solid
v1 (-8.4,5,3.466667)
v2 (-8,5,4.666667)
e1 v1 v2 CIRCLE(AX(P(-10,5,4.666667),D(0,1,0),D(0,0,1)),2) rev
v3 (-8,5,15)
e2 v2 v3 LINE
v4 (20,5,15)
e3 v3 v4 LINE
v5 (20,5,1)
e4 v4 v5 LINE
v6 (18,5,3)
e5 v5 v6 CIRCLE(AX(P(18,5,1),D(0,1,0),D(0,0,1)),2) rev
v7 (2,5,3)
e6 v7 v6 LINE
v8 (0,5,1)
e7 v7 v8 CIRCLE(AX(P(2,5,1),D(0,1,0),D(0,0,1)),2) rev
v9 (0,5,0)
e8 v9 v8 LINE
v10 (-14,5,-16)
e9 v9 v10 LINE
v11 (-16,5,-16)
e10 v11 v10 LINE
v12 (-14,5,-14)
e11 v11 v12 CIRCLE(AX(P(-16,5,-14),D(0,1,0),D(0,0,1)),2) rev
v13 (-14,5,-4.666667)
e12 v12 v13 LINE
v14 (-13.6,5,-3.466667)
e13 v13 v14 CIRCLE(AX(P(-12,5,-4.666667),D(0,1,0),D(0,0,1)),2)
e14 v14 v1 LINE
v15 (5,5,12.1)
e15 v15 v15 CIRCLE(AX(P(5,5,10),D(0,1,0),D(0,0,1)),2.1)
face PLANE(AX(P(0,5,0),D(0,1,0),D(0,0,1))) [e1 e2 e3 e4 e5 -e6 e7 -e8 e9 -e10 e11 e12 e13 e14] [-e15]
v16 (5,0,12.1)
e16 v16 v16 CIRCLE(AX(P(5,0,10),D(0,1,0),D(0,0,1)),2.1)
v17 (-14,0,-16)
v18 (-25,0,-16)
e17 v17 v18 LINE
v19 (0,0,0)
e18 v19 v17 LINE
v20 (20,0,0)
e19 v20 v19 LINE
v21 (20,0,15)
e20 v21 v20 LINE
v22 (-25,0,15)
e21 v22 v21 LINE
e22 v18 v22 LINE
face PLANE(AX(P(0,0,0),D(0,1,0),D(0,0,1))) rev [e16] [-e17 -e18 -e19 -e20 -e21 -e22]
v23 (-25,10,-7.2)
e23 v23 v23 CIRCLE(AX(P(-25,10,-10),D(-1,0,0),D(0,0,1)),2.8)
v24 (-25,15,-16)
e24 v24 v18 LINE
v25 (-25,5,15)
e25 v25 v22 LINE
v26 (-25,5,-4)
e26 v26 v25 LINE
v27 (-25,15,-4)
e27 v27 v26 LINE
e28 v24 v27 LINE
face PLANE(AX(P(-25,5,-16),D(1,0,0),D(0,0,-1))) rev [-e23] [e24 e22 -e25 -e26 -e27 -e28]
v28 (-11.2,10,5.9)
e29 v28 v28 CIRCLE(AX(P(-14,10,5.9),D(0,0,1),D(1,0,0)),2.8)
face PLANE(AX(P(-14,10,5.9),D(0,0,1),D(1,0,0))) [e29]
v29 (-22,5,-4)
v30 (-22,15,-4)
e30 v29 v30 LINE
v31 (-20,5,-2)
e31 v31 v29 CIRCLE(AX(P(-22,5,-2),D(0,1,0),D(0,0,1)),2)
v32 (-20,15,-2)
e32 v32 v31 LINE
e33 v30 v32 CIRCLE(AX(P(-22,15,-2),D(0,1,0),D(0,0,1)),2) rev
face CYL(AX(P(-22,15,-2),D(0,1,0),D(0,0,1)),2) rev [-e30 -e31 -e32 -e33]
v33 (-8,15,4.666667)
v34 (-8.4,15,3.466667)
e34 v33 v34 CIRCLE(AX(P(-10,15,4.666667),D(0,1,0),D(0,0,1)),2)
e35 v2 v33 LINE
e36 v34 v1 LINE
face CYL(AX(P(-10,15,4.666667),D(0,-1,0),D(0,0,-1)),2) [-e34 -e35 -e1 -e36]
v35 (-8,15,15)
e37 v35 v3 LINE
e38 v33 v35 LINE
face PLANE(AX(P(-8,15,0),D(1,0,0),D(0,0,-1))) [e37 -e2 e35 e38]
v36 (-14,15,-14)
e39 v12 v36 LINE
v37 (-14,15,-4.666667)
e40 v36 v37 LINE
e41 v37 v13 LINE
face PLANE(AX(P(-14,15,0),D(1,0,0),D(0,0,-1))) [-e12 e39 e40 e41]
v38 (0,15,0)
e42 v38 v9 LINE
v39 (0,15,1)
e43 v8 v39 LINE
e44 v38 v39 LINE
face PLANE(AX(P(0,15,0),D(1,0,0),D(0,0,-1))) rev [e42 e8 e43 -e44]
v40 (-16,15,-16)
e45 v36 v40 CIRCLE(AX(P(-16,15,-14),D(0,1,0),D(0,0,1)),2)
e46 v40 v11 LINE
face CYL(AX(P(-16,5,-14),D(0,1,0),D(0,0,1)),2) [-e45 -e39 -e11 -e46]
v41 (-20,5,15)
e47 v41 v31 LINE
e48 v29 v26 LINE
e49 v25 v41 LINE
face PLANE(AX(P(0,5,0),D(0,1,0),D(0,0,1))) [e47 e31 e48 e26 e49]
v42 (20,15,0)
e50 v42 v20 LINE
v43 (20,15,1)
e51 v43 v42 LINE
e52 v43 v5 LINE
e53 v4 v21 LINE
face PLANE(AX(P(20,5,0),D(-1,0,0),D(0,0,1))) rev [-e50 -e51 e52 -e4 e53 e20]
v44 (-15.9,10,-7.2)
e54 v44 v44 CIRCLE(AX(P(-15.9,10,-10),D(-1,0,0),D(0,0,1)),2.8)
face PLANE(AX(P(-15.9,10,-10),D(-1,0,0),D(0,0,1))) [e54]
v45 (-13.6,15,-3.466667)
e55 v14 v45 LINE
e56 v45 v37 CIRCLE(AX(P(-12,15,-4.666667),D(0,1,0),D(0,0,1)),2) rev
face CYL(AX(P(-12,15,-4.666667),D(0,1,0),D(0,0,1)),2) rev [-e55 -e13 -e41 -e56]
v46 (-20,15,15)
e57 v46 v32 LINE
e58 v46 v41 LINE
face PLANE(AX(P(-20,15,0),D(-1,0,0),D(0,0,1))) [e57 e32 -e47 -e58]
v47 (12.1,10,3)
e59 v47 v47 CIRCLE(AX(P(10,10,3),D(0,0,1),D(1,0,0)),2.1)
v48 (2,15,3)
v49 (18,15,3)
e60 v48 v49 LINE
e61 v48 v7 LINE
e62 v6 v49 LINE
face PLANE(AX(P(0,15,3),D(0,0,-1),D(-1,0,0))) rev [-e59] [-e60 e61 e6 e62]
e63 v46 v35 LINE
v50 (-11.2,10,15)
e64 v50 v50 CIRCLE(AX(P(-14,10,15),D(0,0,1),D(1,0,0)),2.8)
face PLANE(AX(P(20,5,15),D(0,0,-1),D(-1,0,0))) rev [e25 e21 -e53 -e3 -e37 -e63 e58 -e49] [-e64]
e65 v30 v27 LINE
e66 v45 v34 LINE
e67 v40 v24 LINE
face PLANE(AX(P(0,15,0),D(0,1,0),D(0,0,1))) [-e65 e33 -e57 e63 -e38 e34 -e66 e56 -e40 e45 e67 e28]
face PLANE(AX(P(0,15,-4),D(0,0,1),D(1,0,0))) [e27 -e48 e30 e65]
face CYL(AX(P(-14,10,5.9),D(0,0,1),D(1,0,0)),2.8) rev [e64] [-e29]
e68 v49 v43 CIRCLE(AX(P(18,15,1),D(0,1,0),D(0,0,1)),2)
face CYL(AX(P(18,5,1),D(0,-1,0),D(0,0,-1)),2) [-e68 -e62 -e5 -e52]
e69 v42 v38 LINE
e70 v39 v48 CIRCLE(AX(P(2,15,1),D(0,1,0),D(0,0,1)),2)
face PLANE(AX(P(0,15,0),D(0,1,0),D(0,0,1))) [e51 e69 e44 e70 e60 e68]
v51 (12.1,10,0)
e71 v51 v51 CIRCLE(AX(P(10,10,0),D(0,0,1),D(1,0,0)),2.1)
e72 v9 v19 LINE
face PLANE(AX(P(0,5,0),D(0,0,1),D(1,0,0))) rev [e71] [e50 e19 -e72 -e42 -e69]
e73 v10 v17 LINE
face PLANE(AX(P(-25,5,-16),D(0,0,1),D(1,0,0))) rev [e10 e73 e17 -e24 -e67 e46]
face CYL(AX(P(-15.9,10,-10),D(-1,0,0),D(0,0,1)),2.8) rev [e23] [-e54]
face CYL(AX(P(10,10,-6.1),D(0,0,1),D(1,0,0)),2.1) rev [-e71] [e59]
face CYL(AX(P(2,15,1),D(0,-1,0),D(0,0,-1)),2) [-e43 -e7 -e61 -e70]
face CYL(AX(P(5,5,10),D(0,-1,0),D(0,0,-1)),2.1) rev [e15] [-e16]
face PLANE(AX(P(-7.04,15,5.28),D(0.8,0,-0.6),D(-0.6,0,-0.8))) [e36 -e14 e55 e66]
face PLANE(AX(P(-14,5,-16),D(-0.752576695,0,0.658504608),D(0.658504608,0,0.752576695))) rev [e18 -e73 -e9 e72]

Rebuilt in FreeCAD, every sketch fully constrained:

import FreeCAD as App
import Part
import Sketcher
from FreeCAD import Vector
Q = App.Units.Quantity


def edges_at(feature, points):
    """Names of the edges that pass closest to the given points."""
    edges = feature.Shape.Edges
    near = lambda p: min(range(len(edges)), key=lambda i: edges[i].distToShape(Part.Vertex(*p))[0])
    return sorted({f"Edge{near(p) + 1}" for p in points})

doc = App.newDocument("Part")
body = doc.addObject("PartDesign::Body", "Body")

# Sketch on XZ plane
sketch1 = doc.addObject("Sketcher::SketchObject", "Sketch")
body.addObject(sketch1)
sketch1.AttachmentSupport = (doc.XZ_Plane, [""])
sketch1.MapMode = "FlatFace"
sketch1.addGeometry([
    Part.LineSegment(Vector(20, 15, 0), Vector(20, 0, 0)),  # 0
    Part.LineSegment(Vector(20, 0, 0), Vector(0, 0, 0)),  # 1
    Part.LineSegment(Vector(0, 0, 0), Vector(-14, -16, 0)),  # 2
    Part.LineSegment(Vector(-14, -16, 0), Vector(-25, -16, 0)),  # 3
    Part.LineSegment(Vector(-25, -16, 0), Vector(-25, 15, 0)),  # 4
    Part.LineSegment(Vector(-25, 15, 0), Vector(20, 15, 0)),  # 5
    Part.Circle(Vector(5, 10, 0), Vector(0, 0, 1), 2.1),  # 6
], False)
sketch1.addConstraint([
    Sketcher.Constraint("Coincident", 0, 2, 1, 1),
    Sketcher.Constraint("Coincident", 1, 2, 2, 1),
    Sketcher.Constraint("Coincident", 2, 2, 3, 1),
    Sketcher.Constraint("Coincident", 3, 2, 4, 1),
    Sketcher.Constraint("Coincident", 4, 2, 5, 1),
    Sketcher.Constraint("Coincident", 5, 2, 0, 1),
    Sketcher.Constraint("Vertical", 0),
    Sketcher.Constraint("Horizontal", 1),
    Sketcher.Constraint("Horizontal", 3),
    Sketcher.Constraint("Vertical", 4),
    Sketcher.Constraint("Horizontal", 5),
    Sketcher.Constraint("Coincident", 1, 2, -1, 1),
    Sketcher.Constraint("Diameter", 6, Q("4.2 mm")),
    Sketcher.Constraint("DistanceX", 1, 2, 1, 1, Q("20 mm")),
    Sketcher.Constraint("DistanceX", 3, 2, 3, 1, Q("11 mm")),
    Sketcher.Constraint("DistanceX", 5, 1, 5, 2, Q("45 mm")),
    Sketcher.Constraint("DistanceY", 0, 2, 0, 1, Q("15 mm")),
    Sketcher.Constraint("DistanceY", 4, 1, 4, 2, Q("31 mm")),
    Sketcher.Constraint("DistanceX", -1, 1, 6, 3, Q("5 mm")),
    Sketcher.Constraint("DistanceY", -1, 1, 6, 3, Q("10 mm")),
])
pad1 = doc.addObject("PartDesign::Pad", "Pad")
body.addObject(pad1)
pad1.Profile = sketch1
pad1.Length = 5
pad1.Reversed = True

# Sketch on XZ plane
sketch2 = doc.addObject("Sketcher::SketchObject", "Sketch001")
body.addObject(sketch2)
sketch2.AttachmentSupport = (doc.XZ_Plane, [""])
sketch2.MapMode = "FlatFace"
sketch2.AttachmentOffset = App.Placement(Vector(0, 0, -5), App.Rotation())
sketch2.addGeometry([
    Part.LineSegment(Vector(0, 0, 0), Vector(0, 3, 0)),  # 0
    Part.LineSegment(Vector(0, 3, 0), Vector(20, 3, 0)),  # 1
    Part.LineSegment(Vector(20, 3, 0), Vector(20, 0, 0)),  # 2
    Part.LineSegment(Vector(20, 0, 0), Vector(0, 0, 0)),  # 3
    Part.LineSegment(Vector(-14, -4, 0), Vector(-14, -16, 0)),  # 4
    Part.LineSegment(Vector(-14, -16, 0), Vector(-25, -16, 0)),  # 5
    Part.LineSegment(Vector(-25, -16, 0), Vector(-25, -4, 0)),  # 6
    Part.LineSegment(Vector(-25, -4, 0), Vector(-20, -4, 0)),  # 7
    Part.LineSegment(Vector(-20, -4, 0), Vector(-20, 15, 0)),  # 8
    Part.LineSegment(Vector(-20, 15, 0), Vector(-8, 15, 0)),  # 9
    Part.LineSegment(Vector(-8, 15, 0), Vector(-8, 4, 0)),  # 10
    Part.LineSegment(Vector(-8, 4, 0), Vector(-14, -4, 0)),  # 11
], False)
sketch2.addConstraint([
    Sketcher.Constraint("Coincident", 0, 2, 1, 1),
    Sketcher.Constraint("Coincident", 1, 2, 2, 1),
    Sketcher.Constraint("Coincident", 2, 2, 3, 1),
    Sketcher.Constraint("Coincident", 3, 2, 0, 1),
    Sketcher.Constraint("Coincident", 4, 2, 5, 1),
    Sketcher.Constraint("Coincident", 5, 2, 6, 1),
    Sketcher.Constraint("Coincident", 6, 2, 7, 1),
    Sketcher.Constraint("Coincident", 7, 2, 8, 1),
    Sketcher.Constraint("Coincident", 8, 2, 9, 1),
    Sketcher.Constraint("Coincident", 9, 2, 10, 1),
    Sketcher.Constraint("Coincident", 10, 2, 11, 1),
    Sketcher.Constraint("Coincident", 11, 2, 4, 1),
    Sketcher.Constraint("Vertical", 0),
    Sketcher.Constraint("Horizontal", 1),
    Sketcher.Constraint("Vertical", 2),
    Sketcher.Constraint("Horizontal", 3),
    Sketcher.Constraint("Vertical", 4),
    Sketcher.Constraint("Horizontal", 5),
    Sketcher.Constraint("Vertical", 6),
    Sketcher.Constraint("Horizontal", 7),
    Sketcher.Constraint("Vertical", 8),
    Sketcher.Constraint("Horizontal", 9),
    Sketcher.Constraint("Vertical", 10),
    Sketcher.Constraint("Coincident", 3, 2, -1, 1),
    Sketcher.Constraint("Horizontal", 7, 2, 11, 2),
    Sketcher.Constraint("Equal", 9, 4),
    Sketcher.Constraint("Equal", 5, 10),
    Sketcher.Constraint("DistanceX", 1, 1, 1, 2, Q("20 mm")),
    Sketcher.Constraint("DistanceX", 5, 2, 5, 1, Q("11 mm")),
    Sketcher.Constraint("DistanceX", 7, 1, 7, 2, Q("5 mm")),
    Sketcher.Constraint("DistanceX", 9, 1, 9, 2, Q("12 mm")),
    Sketcher.Constraint("DistanceY", 0, 1, 0, 2, Q("3 mm")),
    Sketcher.Constraint("DistanceY", 8, 1, 8, 2, Q("19 mm")),
    Sketcher.Constraint("DistanceX", 4, 2, -1, 1, Q("14 mm")),
    Sketcher.Constraint("DistanceY", 4, 2, -1, 1, Q("16 mm")),
])
pad2 = doc.addObject("PartDesign::Pad", "Pad001")
body.addObject(pad2)
pad2.Profile = sketch2
pad2.Length = 10
pad2.Reversed = True

# Sketch on XY plane
sketch3 = doc.addObject("Sketcher::SketchObject", "Sketch002")
body.addObject(sketch3)
sketch3.AttachmentSupport = (doc.XY_Plane, [""])
sketch3.MapMode = "FlatFace"
sketch3.AttachmentOffset = App.Placement(Vector(0, 0, 15), App.Rotation())
sketch3.addGeometry(Part.Circle(Vector(-14, 10, 0), Vector(0, 0, 1), 2.8), False)
sketch3.addConstraint([
    Sketcher.Constraint("Diameter", 0, Q("5.6 mm")),
    Sketcher.Constraint("DistanceX", 0, 3, -1, 1, Q("14 mm")),
    Sketcher.Constraint("DistanceY", -1, 1, 0, 3, Q("10 mm")),
])
pocket1 = doc.addObject("PartDesign::Pocket", "Pocket")
body.addObject(pocket1)
pocket1.Profile = sketch3
pocket1.Length = 9.1

# Sketch on XY plane
sketch4 = doc.addObject("Sketcher::SketchObject", "Sketch003")
body.addObject(sketch4)
sketch4.AttachmentSupport = (doc.XY_Plane, [""])
sketch4.MapMode = "FlatFace"
sketch4.AttachmentOffset = App.Placement(Vector(0, 0, 3), App.Rotation())
sketch4.addGeometry(Part.Circle(Vector(10, 10, 0), Vector(0, 0, 1), 2.1), False)
sketch4.addConstraint([
    Sketcher.Constraint("Diameter", 0, Q("4.2 mm")),
    Sketcher.Constraint("DistanceX", -1, 1, 0, 3, Q("10 mm")),
    Sketcher.Constraint("DistanceY", -1, 1, 0, 3, Q("10 mm")),
])
pocket2 = doc.addObject("PartDesign::Pocket", "Pocket001")
body.addObject(pocket2)
pocket2.Profile = sketch4
pocket2.Length = 9.1
doc.recompute()

fillet = doc.addObject("PartDesign::Fillet", "Fillet")
body.addObject(fillet)
fillet.Base = (pocket2, edges_at(pocket2, [
    (0, 10, 3),
    (20, 10, 3),
    (-20, 10, -4),
    (-8, 10, 4),
    (-14, 10, -4),
    (-14, 10, -16),
]))
fillet.Radius = 2

# Sketch on YZ plane
sketch5 = doc.addObject("Sketcher::SketchObject", "Sketch004")
body.addObject(sketch5)
sketch5.AttachmentSupport = (doc.YZ_Plane, [""])
sketch5.MapMode = "FlatFace"
sketch5.AttachmentOffset = App.Placement(Vector(0, 0, -25), App.Rotation())
sketch5.addGeometry(Part.Circle(Vector(10, -10, 0), Vector(0, 0, 1), 2.8), False)
sketch5.addConstraint([
    Sketcher.Constraint("Diameter", 0, Q("5.6 mm")),
    Sketcher.Constraint("DistanceX", -1, 1, 0, 3, Q("10 mm")),
    Sketcher.Constraint("DistanceY", 0, 3, -1, 1, Q("10 mm")),
])
pocket3 = doc.addObject("PartDesign::Pocket", "Pocket002")
body.addObject(pocket3)
pocket3.Profile = sketch5
pocket3.Length = 9.1
pocket3.Reversed = True

doc.recompute()
